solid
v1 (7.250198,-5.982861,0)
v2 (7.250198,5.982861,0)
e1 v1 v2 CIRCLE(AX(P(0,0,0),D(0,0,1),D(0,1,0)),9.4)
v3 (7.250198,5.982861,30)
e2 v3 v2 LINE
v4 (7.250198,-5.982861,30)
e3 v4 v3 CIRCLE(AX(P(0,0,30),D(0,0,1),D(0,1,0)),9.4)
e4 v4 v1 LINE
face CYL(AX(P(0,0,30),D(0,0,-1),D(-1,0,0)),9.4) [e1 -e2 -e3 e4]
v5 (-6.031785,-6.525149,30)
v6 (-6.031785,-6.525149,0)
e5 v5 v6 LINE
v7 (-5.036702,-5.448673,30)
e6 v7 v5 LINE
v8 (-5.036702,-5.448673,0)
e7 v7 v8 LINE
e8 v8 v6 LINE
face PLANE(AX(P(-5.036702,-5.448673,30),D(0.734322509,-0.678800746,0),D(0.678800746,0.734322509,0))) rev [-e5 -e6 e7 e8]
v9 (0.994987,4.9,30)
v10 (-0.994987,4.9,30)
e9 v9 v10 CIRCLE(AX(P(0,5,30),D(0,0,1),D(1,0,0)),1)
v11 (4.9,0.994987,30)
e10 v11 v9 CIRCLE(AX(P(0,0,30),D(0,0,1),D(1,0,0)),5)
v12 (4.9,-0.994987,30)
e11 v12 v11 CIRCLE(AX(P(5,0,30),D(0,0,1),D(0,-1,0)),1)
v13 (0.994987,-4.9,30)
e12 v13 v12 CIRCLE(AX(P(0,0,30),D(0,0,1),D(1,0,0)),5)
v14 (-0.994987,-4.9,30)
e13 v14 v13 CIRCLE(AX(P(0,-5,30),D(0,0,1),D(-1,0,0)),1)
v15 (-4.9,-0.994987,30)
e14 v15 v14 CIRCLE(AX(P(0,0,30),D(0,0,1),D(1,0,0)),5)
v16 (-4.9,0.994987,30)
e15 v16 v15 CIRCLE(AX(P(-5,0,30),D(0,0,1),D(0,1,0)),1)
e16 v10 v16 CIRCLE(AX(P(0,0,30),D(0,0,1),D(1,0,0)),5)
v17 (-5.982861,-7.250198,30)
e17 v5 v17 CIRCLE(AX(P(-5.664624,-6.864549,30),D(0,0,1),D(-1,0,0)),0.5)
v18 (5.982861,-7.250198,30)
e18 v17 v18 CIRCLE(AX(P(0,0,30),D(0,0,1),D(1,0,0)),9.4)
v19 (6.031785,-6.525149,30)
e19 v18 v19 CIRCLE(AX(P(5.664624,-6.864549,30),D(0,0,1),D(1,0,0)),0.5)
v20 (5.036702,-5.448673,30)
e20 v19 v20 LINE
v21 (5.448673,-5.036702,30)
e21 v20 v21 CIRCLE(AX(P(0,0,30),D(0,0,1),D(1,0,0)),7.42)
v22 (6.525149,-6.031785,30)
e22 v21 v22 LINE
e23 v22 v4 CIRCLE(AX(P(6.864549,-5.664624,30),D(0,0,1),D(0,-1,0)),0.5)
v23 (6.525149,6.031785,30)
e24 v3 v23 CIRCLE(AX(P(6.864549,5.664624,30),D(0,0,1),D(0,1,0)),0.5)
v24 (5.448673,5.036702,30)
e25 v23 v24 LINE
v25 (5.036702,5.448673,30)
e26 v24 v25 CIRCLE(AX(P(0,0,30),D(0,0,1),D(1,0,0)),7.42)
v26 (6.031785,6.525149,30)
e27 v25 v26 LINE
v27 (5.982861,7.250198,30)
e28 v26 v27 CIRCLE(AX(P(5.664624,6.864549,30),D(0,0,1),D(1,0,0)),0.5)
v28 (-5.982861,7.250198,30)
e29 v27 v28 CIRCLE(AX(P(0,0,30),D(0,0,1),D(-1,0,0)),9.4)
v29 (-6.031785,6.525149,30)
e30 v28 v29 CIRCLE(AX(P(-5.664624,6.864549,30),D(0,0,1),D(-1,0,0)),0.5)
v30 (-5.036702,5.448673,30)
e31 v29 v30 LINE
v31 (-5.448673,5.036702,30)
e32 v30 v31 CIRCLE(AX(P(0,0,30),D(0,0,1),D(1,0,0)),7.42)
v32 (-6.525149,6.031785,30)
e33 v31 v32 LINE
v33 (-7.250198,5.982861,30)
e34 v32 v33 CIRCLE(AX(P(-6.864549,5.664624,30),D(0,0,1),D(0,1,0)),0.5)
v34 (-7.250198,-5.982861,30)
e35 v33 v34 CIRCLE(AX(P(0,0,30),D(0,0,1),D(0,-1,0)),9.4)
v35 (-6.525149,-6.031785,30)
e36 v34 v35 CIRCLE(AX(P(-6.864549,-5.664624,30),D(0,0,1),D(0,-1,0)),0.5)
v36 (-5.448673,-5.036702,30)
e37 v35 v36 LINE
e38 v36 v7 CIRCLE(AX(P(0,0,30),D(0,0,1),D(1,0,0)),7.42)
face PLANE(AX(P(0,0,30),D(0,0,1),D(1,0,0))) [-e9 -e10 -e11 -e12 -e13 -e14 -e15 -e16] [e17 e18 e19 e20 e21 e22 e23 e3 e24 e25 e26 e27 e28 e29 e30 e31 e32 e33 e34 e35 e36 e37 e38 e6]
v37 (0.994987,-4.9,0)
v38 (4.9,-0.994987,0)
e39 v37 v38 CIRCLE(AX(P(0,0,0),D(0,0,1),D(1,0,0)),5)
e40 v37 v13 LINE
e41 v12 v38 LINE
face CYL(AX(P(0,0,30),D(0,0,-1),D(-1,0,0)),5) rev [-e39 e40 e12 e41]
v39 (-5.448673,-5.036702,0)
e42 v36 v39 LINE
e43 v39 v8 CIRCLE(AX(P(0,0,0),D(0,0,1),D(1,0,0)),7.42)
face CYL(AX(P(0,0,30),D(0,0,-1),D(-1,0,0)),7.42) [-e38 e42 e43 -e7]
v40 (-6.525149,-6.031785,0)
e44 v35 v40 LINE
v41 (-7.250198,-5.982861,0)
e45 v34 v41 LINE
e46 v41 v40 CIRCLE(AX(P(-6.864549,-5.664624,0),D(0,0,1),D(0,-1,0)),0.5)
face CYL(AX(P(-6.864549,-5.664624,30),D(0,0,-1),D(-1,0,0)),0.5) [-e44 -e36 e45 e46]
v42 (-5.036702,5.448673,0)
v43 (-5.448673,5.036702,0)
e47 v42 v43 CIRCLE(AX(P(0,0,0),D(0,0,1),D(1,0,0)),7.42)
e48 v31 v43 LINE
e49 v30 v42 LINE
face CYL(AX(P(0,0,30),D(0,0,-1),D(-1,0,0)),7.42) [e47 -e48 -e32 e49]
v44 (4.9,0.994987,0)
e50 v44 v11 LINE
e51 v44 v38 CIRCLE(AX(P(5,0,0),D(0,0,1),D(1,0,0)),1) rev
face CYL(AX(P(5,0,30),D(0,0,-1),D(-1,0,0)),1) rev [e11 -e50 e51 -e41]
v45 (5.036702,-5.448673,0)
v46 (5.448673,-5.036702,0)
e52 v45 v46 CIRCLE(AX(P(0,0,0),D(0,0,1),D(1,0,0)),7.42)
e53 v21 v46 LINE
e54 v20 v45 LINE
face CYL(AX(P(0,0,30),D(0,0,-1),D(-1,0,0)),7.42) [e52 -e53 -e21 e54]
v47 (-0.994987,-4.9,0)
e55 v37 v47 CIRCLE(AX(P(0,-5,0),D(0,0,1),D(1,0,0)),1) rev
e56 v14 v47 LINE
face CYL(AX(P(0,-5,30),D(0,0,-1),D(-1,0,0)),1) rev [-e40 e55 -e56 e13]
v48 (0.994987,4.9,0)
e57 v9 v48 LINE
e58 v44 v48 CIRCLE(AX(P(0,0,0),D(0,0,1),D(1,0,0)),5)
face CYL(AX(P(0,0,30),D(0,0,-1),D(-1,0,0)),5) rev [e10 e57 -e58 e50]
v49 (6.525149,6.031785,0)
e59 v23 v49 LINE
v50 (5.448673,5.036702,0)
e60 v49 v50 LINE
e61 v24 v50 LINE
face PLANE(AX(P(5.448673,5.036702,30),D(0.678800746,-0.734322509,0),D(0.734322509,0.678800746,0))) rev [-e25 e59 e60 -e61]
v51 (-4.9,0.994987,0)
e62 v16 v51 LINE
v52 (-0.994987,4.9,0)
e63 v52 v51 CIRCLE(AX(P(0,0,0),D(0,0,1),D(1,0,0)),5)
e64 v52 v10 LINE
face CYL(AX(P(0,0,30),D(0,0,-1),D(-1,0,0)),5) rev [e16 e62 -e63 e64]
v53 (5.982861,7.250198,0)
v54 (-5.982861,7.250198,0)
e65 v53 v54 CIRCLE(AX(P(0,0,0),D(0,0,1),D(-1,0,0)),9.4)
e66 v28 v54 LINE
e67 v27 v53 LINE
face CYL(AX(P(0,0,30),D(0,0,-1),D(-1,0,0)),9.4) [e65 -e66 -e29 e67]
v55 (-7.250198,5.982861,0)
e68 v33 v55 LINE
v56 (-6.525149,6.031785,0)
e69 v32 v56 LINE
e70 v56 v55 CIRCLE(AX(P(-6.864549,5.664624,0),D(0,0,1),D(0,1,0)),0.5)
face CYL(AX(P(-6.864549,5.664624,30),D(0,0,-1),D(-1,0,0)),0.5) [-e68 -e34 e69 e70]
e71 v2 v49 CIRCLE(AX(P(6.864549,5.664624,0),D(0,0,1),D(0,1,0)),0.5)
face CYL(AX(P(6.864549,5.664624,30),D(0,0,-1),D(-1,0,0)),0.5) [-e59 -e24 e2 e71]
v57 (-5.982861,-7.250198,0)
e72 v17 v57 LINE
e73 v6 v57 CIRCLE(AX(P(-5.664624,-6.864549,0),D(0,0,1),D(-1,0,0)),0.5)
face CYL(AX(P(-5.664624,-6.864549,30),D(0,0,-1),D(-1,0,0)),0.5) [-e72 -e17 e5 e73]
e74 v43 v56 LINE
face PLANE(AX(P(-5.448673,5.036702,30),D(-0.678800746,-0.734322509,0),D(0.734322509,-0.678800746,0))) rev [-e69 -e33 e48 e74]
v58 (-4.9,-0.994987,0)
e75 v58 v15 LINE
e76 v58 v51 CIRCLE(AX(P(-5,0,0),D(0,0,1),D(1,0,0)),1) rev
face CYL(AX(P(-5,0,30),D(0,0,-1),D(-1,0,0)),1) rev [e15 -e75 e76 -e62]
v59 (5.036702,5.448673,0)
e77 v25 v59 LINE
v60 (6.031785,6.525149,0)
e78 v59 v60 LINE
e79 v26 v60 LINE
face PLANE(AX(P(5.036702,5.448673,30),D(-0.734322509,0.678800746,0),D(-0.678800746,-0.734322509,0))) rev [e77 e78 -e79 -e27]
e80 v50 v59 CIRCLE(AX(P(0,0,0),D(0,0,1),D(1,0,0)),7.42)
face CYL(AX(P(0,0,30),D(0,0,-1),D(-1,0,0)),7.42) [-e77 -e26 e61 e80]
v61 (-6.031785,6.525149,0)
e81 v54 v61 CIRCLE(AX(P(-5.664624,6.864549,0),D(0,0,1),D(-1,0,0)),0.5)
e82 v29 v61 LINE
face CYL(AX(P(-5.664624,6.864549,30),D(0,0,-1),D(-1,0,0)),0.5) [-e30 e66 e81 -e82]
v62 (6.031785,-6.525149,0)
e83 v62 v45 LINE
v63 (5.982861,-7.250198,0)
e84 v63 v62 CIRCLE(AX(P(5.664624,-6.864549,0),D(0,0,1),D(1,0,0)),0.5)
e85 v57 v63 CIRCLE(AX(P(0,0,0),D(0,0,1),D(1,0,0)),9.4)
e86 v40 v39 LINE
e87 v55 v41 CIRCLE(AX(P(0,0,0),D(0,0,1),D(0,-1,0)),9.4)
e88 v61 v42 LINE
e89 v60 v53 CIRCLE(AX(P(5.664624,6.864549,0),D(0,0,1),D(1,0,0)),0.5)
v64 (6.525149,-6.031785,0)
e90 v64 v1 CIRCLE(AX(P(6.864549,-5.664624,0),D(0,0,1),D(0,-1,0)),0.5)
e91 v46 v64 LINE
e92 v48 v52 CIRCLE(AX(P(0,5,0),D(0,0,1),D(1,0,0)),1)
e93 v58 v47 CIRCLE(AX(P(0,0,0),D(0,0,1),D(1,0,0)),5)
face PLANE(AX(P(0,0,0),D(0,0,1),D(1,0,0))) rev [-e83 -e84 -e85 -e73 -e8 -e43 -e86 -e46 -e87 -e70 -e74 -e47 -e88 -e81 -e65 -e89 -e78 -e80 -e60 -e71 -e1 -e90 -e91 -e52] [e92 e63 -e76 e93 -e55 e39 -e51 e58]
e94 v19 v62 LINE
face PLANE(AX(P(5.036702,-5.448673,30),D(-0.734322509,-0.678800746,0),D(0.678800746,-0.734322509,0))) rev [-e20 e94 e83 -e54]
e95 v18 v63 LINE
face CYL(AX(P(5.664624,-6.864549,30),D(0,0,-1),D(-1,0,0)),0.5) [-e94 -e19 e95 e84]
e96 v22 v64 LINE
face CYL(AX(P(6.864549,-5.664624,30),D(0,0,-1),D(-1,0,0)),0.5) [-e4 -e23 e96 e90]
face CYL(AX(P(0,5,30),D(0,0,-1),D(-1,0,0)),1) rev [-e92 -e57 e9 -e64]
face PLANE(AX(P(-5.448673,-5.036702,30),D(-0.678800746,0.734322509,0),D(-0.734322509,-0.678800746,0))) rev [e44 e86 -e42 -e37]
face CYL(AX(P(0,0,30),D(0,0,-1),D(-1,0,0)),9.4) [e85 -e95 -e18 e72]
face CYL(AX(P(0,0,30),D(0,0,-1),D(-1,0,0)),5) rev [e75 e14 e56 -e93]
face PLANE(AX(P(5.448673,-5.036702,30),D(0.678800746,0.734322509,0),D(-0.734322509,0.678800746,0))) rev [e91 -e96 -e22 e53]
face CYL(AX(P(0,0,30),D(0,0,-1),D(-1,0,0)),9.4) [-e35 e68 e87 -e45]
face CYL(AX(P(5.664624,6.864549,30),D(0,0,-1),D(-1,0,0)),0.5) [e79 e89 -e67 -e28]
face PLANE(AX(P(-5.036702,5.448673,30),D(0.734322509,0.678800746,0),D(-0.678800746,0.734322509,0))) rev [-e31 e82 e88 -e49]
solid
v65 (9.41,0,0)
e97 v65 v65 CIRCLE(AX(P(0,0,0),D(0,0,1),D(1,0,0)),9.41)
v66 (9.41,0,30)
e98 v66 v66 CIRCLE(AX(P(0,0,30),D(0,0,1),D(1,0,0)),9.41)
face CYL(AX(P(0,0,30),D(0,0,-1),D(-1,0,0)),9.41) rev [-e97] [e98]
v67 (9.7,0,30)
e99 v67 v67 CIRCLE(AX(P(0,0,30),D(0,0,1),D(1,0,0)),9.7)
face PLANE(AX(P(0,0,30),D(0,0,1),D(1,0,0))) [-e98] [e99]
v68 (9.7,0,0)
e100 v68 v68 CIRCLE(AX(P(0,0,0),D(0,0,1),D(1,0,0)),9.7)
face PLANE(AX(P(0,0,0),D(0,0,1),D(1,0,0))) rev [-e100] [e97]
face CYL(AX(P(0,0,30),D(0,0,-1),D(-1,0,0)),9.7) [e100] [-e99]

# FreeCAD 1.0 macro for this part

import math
import FreeCAD as App
import Part
import Sketcher
Q = App.Units.Quantity

doc = App.newDocument("Part")
body = doc.addObject("PartDesign::Body", "Body")

sketch1 = body.newObject("Sketcher::SketchObject", "Sketch")
sketch1.AttachmentSupport = (doc.getObject("XY_Plane"), [""])
sketch1.MapMode = "FlatFace"
sketch1.addGeometry([
    Part.Circle(App.Vector(0, 0, 0), App.Vector(0, 0, 1), 7),
    Part.Circle(App.Vector(0, 0, 0), App.Vector(0, 0, 1), 5),
], False)
sketch1.addConstraint([
    Sketcher.Constraint("Coincident", 0, 3, -1, 1),
    Sketcher.Constraint("Coincident", 1, 3, -1, 1),
    Sketcher.Constraint("Diameter", 1, 10.0),
    Sketcher.Constraint("Diameter", 0, 14.84),
])
pad1 = body.newObject("PartDesign::Pad", "Pad")
pad1.Profile = sketch1
pad1.Length = 30

sketch2 = body.newObject("Sketcher::SketchObject", "Sketch001")
sketch2.AttachmentSupport = (doc.getObject("XY_Plane"), [""])
sketch2.MapMode = "FlatFace"
sketch2.addGeometry([
    Part.LineSegment(App.Vector(5, 5.4, 0), App.Vector(6, 6.5, 0)),
    Part.ArcOfCircle(Part.Circle(App.Vector(5.7, 6.9, 0), App.Vector(0, 0, 1), 0.5), math.radians(-43), math.radians(50)),
    Part.ArcOfCircle(Part.Circle(App.Vector(0, 0, 0), App.Vector(0, 0, 1), 9.4), math.radians(50), math.radians(130)),
    Part.ArcOfCircle(Part.Circle(App.Vector(-5.7, 6.9, 0), App.Vector(0, 0, 1), 0.5), math.radians(130), math.radians(223)),
    Part.LineSegment(App.Vector(-6, 6.5, 0), App.Vector(-5, 5.4, 0)),
    Part.ArcOfCircle(Part.Circle(App.Vector(0, 0, 0), App.Vector(0, 0, 1), 7.4), math.radians(47), math.radians(133)),
], False)
sketch2.addConstraint([
    Sketcher.Constraint("Tangent", 0, 2, 1, 1),
    Sketcher.Constraint("Tangent", 1, 2, 2, 1),
    Sketcher.Constraint("Tangent", 2, 2, 3, 1),
    Sketcher.Constraint("Tangent", 3, 2, 4, 1),
    Sketcher.Constraint("Coincident", 4, 2, 5, 2),
    Sketcher.Constraint("Coincident", 5, 1, 0, 1),
    Sketcher.Constraint("Coincident", 2, 3, -1, 1),
    Sketcher.Constraint("Coincident", 5, 3, -1, 1),
    Sketcher.Constraint("Equal", 1, 3),
    Sketcher.Constraint("Symmetric", 0, 2, 3, 2, -2),
    Sketcher.Constraint("Radius", 1, 0.5),
    Sketcher.Constraint("Radius", 2, 9.4),
    Sketcher.Constraint("Radius", 5, 7.42),
    Sketcher.Constraint("Angle", 0, Q("47.25 deg")),
    Sketcher.Constraint("DistanceX", 4, 2, -1, 1, 5.036702),
])
pad2 = body.newObject("PartDesign::Pad", "Pad001")
pad2.Profile = sketch2
pad2.Length = 30
doc.recompute()

polarpattern = body.newObject("PartDesign::PolarPattern", "PolarPattern")
polarpattern.Originals = [pad2]
polarpattern.Axis = (doc.getObject("Z_Axis"), [""])
polarpattern.Angle = 360
polarpattern.Occurrences = 4
body.Tip = polarpattern

sketch3 = body.newObject("Sketcher::SketchObject", "Sketch002")
sketch3.AttachmentSupport = (doc.getObject("XY_Plane"), [""])
sketch3.MapMode = "FlatFace"
sketch3.addGeometry(Part.Circle(App.Vector(0, 5, 0), App.Vector(0, 0, 1), 1), False)
sketch3.addConstraint([
    Sketcher.Constraint("PointOnObject", 0, 3, -2),
    Sketcher.Constraint("Diameter", 0, 2.0),
    Sketcher.Constraint("DistanceY", -1, 1, 0, 3, 5.0),
])
pocket1 = body.newObject("PartDesign::Pocket", "Pocket")
pocket1.Profile = sketch3
pocket1.Length = 30
pocket1.Reversed = True
doc.recompute()

polarpattern2 = body.newObject("PartDesign::PolarPattern", "PolarPattern001")
polarpattern2.Originals = [pocket1]
polarpattern2.Axis = (doc.getObject("Z_Axis"), [""])
polarpattern2.Angle = 360
polarpattern2.Occurrences = 4
body.Tip = polarpattern2
body2 = doc.addObject("PartDesign::Body", "Body001")

sketch4 = body2.newObject("Sketcher::SketchObject", "Sketch003")
sketch4.AttachmentSupport = (doc.getObject("XY_Plane001"), [""])
sketch4.MapMode = "FlatFace"
sketch4.addGeometry([
    Part.Circle(App.Vector(0, 0, 0), App.Vector(0, 0, 1), 10),
    Part.Circle(App.Vector(0, 0, 0), App.Vector(0, 0, 1), 9),
], False)
sketch4.addConstraint([
    Sketcher.Constraint("Coincident", 0, 3, -1, 1),
    Sketcher.Constraint("Coincident", 1, 3, -1, 1),
    Sketcher.Constraint("Diameter", 0, 19.4),
    Sketcher.Constraint("Diameter", 1, 18.82),
])
pad3 = body2.newObject("PartDesign::Pad", "Pad002")
pad3.Profile = sketch4
pad3.Length = 30

doc.recompute()
